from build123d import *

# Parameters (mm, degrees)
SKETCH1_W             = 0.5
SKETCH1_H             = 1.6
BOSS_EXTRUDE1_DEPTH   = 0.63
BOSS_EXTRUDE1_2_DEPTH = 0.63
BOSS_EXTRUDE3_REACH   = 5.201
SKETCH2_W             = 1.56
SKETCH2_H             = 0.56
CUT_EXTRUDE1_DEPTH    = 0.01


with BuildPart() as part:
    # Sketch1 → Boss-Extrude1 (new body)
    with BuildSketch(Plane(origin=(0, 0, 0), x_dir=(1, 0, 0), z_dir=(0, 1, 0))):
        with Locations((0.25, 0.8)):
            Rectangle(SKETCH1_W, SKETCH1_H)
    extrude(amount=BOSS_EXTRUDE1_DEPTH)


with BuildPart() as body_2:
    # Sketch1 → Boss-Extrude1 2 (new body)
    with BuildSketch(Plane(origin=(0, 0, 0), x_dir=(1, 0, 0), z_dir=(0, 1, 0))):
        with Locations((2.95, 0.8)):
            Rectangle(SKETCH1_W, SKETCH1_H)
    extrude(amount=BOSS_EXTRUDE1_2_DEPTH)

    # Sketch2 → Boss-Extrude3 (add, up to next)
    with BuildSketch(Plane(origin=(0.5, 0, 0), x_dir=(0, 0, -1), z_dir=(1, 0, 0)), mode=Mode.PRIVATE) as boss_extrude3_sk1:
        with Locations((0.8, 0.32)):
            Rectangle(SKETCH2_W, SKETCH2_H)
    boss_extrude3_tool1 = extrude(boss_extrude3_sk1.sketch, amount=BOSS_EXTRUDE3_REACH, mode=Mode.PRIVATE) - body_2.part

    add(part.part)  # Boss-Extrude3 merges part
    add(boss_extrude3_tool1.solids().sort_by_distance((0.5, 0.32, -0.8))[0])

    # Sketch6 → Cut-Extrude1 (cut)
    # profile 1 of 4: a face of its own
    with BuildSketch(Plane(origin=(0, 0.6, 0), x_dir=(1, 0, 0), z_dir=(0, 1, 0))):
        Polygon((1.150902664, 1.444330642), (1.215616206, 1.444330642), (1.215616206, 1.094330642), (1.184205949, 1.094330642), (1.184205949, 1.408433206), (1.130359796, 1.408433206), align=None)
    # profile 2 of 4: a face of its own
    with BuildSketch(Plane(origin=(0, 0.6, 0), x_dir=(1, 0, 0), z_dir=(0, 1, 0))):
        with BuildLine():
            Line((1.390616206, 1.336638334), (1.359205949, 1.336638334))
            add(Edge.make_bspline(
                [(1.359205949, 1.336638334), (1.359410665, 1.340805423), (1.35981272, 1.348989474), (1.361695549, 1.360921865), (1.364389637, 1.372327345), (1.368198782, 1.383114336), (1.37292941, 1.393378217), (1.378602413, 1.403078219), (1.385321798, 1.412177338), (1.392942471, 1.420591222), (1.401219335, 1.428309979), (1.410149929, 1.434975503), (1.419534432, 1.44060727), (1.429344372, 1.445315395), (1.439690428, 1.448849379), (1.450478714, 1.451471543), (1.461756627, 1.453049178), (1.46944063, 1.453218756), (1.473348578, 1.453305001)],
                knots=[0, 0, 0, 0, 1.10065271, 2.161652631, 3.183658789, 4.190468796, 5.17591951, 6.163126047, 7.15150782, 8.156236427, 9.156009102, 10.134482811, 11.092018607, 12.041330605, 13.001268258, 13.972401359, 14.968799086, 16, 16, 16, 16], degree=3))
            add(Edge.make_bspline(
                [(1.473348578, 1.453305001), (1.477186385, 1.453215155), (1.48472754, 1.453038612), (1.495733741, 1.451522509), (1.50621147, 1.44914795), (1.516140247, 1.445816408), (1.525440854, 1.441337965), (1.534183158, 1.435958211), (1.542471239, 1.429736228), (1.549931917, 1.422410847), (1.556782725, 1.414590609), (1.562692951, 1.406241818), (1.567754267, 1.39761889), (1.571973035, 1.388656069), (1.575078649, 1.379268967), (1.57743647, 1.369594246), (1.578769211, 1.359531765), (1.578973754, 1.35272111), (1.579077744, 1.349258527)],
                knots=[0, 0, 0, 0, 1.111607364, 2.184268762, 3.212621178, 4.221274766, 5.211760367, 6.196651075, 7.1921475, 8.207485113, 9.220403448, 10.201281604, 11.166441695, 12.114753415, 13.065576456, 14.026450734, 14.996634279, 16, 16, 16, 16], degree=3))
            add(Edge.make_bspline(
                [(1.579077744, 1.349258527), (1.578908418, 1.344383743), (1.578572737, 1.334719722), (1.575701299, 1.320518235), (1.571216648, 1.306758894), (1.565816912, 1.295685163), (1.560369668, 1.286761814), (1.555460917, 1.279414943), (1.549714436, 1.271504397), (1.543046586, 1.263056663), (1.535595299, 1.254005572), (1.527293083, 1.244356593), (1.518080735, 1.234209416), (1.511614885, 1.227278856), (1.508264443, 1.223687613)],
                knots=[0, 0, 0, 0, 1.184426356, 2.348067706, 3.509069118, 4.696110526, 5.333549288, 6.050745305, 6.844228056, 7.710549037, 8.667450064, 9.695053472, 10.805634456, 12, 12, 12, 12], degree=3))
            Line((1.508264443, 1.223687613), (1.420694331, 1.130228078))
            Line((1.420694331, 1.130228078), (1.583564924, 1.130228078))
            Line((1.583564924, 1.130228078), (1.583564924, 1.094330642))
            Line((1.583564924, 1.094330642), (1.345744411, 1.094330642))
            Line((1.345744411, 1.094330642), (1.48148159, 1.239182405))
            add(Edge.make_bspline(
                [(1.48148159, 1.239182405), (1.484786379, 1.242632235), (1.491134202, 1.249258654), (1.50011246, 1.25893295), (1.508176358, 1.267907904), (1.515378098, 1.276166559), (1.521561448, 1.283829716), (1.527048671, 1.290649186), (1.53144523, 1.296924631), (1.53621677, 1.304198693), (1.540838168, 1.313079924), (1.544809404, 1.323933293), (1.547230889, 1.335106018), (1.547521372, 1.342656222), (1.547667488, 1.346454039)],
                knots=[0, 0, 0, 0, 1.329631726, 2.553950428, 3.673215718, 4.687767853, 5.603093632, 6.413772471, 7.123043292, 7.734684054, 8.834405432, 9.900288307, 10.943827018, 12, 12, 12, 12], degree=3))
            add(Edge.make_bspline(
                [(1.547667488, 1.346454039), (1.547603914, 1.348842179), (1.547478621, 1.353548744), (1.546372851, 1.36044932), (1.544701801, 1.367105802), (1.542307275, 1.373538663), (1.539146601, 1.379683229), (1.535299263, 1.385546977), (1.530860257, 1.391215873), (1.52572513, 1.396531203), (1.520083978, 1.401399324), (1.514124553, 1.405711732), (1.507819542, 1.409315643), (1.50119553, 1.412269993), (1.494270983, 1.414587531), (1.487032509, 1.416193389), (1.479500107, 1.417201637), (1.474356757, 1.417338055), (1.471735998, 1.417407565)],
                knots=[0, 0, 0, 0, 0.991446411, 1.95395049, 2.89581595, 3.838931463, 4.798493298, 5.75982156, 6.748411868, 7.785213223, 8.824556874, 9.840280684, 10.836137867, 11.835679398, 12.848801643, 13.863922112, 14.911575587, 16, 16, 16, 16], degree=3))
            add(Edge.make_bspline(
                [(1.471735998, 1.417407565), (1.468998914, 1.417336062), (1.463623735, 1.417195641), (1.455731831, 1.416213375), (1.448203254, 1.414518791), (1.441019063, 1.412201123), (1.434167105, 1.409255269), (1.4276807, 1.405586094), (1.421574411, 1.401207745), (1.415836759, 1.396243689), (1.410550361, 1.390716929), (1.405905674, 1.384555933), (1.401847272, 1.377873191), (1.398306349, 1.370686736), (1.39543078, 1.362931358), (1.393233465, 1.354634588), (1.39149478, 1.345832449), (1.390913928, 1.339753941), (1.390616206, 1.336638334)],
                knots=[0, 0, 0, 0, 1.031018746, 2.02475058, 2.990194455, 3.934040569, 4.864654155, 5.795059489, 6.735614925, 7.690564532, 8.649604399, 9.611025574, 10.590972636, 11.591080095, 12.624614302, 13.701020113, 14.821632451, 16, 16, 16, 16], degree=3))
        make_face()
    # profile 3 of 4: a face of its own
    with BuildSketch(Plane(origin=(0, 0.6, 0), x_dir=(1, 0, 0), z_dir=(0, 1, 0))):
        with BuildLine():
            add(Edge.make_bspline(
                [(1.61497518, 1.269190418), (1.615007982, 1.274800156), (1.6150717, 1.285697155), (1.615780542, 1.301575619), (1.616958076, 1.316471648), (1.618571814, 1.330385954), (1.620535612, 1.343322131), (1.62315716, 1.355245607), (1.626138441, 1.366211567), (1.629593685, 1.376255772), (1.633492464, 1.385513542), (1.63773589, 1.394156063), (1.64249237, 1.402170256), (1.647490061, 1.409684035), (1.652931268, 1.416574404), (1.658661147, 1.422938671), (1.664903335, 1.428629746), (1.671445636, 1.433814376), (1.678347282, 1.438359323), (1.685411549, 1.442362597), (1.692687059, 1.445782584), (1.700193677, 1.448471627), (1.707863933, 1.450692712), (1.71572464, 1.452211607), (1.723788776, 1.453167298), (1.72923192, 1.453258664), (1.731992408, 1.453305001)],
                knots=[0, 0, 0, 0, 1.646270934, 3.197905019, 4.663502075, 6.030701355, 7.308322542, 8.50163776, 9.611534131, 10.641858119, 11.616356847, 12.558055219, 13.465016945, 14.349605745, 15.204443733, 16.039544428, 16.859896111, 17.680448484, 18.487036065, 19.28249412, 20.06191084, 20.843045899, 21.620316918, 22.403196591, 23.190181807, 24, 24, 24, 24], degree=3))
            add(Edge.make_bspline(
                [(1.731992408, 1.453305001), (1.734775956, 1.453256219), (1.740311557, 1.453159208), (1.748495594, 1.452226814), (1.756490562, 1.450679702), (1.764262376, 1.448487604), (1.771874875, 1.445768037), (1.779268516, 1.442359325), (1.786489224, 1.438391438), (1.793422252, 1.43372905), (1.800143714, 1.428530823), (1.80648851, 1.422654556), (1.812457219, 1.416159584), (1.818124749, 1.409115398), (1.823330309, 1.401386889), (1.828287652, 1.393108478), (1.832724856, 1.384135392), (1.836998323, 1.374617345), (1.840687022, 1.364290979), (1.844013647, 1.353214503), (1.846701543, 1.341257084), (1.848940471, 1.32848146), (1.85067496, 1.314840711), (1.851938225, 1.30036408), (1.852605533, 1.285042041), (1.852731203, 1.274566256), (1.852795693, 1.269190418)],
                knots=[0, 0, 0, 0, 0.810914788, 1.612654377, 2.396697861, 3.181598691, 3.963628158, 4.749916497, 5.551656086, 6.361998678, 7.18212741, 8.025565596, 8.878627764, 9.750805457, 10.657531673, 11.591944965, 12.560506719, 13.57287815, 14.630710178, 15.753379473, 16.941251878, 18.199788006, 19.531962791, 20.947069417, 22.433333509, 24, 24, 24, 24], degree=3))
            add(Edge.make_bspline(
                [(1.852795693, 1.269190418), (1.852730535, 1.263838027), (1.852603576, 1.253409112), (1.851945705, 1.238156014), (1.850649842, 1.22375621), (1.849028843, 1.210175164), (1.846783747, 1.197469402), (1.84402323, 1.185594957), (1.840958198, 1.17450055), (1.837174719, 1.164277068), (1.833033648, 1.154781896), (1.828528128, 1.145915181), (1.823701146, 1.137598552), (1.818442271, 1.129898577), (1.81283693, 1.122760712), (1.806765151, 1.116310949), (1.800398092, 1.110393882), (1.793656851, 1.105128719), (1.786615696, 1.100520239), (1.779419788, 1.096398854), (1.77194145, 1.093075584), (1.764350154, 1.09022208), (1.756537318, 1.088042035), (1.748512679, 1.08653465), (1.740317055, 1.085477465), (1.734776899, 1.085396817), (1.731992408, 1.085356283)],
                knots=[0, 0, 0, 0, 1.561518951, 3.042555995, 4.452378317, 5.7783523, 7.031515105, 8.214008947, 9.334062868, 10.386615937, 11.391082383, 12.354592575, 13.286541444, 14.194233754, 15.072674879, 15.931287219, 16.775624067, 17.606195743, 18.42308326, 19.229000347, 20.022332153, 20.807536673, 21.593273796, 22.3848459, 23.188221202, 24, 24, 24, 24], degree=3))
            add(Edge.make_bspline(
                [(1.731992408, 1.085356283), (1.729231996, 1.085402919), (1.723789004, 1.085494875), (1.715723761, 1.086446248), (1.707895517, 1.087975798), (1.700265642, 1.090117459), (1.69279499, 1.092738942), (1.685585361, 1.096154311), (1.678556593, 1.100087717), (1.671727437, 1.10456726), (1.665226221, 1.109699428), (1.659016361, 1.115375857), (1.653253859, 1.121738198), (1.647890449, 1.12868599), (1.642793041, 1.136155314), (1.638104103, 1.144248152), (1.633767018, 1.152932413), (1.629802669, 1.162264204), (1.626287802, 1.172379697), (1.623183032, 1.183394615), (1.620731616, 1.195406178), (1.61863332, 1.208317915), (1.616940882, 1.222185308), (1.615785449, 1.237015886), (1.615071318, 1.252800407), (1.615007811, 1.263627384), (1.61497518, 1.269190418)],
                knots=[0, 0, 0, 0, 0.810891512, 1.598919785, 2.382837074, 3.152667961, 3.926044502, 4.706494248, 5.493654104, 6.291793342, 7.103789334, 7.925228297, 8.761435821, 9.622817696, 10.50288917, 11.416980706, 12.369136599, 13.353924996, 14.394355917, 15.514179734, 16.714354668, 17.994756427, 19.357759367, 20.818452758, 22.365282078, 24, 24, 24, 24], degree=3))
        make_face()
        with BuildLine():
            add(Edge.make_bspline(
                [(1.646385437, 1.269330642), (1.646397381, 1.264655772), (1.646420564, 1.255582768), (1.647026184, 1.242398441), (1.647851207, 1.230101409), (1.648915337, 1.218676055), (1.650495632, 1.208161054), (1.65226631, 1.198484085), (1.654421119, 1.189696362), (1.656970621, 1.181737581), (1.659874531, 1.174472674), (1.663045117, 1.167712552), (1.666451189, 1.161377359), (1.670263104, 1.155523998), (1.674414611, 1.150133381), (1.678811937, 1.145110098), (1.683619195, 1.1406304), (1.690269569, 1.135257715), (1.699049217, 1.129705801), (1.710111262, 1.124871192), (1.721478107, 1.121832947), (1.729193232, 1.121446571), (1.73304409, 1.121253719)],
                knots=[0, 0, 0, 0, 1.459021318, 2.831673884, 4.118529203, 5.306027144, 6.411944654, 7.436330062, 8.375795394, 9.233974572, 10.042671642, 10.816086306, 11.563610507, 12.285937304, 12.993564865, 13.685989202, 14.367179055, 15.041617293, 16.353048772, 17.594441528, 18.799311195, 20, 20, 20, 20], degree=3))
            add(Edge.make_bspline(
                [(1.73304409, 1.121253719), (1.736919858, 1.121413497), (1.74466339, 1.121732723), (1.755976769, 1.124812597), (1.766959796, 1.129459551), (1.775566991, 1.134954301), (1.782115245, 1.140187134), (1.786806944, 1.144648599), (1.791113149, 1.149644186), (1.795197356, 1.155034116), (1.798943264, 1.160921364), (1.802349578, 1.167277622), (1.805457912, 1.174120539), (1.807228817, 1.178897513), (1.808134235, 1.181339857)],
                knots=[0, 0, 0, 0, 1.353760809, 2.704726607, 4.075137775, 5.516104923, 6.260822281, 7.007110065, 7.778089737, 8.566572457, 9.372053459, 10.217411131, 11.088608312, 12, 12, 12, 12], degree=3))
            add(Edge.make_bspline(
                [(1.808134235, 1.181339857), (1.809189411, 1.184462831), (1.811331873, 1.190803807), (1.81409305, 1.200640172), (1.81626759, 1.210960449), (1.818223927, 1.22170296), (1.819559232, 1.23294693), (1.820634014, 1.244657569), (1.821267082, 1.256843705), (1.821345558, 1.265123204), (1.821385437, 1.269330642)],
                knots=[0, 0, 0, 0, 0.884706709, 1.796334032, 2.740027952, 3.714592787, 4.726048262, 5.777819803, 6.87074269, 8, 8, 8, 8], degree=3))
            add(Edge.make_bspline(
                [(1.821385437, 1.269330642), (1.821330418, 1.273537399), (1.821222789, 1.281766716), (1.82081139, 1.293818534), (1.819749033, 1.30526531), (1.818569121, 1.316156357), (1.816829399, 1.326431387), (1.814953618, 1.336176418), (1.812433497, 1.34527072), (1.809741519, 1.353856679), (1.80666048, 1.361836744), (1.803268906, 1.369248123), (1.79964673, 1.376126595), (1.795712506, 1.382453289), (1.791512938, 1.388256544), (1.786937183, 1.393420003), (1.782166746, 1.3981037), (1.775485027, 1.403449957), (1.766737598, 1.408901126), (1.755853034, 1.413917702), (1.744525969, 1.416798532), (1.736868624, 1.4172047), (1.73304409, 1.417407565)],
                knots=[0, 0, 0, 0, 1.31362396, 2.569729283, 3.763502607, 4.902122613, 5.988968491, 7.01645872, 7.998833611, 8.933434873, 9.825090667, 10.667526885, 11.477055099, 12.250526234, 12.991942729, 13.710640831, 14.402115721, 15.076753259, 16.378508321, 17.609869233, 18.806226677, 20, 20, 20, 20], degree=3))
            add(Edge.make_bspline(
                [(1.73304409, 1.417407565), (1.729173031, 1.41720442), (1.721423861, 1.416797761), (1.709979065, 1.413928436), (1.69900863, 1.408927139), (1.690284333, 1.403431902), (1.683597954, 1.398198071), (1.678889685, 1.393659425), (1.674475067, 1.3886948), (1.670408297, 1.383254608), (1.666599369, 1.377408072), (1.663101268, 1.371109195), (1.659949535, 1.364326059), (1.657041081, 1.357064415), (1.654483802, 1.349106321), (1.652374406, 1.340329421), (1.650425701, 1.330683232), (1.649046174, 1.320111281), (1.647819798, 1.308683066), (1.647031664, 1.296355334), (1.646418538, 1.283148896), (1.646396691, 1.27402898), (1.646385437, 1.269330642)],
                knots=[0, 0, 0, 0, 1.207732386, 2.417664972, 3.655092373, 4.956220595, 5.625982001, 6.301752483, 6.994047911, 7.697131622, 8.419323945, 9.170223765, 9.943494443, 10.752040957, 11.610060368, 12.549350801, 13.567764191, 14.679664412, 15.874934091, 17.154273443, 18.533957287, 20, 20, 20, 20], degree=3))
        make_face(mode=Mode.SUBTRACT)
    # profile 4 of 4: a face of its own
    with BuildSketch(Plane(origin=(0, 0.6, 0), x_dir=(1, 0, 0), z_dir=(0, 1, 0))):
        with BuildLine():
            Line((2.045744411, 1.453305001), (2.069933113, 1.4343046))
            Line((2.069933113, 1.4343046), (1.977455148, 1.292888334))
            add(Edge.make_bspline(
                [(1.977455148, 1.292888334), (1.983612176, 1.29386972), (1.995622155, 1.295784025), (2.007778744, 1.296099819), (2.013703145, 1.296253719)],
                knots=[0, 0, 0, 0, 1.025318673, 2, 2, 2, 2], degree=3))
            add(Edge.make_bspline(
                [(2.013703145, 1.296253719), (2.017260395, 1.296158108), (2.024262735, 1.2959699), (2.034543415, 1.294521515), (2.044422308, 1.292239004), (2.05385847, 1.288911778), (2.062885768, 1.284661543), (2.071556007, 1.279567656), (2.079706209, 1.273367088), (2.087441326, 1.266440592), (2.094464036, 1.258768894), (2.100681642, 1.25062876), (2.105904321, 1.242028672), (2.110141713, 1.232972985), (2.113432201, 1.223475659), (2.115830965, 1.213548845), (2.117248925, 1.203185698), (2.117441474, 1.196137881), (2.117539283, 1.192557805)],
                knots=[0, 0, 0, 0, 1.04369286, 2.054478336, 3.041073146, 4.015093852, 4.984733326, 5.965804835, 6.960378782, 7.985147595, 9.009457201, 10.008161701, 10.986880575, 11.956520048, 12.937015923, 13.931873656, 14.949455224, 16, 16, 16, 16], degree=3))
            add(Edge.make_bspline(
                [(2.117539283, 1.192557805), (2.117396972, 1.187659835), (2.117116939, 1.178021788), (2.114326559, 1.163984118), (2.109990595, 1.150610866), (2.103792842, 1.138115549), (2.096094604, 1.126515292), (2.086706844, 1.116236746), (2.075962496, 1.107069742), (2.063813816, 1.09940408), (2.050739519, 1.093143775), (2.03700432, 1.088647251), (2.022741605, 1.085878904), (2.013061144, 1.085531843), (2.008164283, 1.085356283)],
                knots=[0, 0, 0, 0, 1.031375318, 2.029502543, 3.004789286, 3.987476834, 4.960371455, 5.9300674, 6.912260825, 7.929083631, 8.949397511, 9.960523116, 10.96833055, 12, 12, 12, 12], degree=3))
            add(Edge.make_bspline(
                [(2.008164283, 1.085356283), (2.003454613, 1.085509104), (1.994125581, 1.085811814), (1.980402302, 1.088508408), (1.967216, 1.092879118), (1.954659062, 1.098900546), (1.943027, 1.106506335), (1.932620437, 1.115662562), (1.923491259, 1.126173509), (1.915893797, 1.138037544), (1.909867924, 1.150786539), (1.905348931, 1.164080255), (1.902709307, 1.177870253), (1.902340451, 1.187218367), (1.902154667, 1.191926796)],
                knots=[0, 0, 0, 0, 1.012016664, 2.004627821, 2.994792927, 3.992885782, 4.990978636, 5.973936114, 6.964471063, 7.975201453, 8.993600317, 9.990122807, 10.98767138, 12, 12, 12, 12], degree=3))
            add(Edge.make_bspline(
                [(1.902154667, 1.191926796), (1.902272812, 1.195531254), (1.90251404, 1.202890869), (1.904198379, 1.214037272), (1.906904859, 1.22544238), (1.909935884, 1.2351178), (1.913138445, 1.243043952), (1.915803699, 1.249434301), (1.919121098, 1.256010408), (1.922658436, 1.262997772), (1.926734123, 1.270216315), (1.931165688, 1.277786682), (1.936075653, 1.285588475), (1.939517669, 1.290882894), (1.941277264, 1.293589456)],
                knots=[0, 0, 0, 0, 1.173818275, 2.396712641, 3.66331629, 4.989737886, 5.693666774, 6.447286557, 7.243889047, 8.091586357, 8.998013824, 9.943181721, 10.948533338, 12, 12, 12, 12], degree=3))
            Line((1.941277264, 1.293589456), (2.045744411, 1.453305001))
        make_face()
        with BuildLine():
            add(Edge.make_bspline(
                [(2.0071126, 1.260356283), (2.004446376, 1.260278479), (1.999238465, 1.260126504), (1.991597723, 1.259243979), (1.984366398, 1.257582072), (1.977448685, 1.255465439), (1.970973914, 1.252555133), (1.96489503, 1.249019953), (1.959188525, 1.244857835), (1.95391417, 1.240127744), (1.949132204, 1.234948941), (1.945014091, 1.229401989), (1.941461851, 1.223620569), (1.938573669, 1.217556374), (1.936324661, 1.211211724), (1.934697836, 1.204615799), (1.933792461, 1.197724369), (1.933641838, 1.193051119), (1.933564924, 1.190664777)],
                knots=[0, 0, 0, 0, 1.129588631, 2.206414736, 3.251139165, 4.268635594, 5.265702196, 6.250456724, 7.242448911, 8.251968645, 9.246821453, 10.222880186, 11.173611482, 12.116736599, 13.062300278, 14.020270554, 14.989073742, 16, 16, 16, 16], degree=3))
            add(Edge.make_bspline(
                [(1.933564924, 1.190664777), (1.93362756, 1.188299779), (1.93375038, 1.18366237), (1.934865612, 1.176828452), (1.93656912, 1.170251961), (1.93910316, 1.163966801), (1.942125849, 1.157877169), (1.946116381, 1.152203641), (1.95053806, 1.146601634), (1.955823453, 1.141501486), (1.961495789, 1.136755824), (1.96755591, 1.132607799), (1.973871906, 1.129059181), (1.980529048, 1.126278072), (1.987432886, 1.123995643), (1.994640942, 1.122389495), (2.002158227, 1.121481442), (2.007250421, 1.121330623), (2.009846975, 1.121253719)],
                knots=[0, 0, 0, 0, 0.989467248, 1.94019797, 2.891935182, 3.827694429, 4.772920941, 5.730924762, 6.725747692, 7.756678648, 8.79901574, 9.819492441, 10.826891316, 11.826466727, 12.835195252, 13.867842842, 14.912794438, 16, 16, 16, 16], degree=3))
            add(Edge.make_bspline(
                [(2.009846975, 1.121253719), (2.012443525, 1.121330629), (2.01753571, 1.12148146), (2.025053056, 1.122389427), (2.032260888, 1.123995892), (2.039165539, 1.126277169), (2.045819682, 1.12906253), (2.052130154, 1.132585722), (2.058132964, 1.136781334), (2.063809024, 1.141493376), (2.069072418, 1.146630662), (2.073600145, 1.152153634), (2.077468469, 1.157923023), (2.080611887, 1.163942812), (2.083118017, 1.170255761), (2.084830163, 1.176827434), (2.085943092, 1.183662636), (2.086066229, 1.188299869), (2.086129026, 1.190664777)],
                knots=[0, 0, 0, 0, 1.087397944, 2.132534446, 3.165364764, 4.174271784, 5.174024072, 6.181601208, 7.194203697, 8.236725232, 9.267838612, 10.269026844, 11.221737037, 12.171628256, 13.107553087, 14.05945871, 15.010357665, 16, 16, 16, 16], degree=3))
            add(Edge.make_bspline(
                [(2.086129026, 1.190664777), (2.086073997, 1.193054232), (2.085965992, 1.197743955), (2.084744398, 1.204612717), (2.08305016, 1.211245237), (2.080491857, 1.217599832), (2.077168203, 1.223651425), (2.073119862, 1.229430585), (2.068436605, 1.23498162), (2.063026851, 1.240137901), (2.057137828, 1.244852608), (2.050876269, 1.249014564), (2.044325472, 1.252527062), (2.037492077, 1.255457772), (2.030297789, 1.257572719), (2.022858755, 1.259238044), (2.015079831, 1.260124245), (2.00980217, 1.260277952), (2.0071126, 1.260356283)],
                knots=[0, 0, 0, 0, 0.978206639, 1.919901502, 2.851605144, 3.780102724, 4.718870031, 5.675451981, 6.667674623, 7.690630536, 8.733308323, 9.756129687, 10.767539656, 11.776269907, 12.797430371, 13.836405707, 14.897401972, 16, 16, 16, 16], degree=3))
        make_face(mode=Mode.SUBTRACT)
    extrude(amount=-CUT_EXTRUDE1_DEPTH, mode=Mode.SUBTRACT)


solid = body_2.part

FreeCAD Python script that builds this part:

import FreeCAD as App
import Part
import Sketcher
from FreeCAD import Vector
Q = App.Units.Quantity

doc = App.newDocument("Part")
params = doc.addObject("Spreadsheet::Sheet", "Params")
for row, (alias, value) in enumerate([
    ("sketch1_width", "0.5 mm"),
    ("sketch1_height", "1.6 mm"),
    ("pad1_length", "0.63 mm"),
    ("sketch2_width", "0.5 mm"),
    ("sketch2_height", "1.6 mm"),
    ("pad2_length", "0.63 mm"),
    ("sketch3_width", "0.56 mm"),
    ("sketch3_height", "1.56 mm"),
    ("sketch4_height", "0.35 mm"),
    ("pocket1_length", "0.01 mm"),
], start=1):
    params.set(f"A{row}", alias)
    params.set(f"B{row}", "=" + value)
    params.setAlias(f"B{row}", alias)

body = doc.addObject("PartDesign::Body", "Body")

# Sketch on XZ plane
sketch1 = doc.addObject("Sketcher::SketchObject", "Sketch")
body.addObject(sketch1)
sketch1.AttachmentSupport = (doc.XZ_Plane, [""])
sketch1.MapMode = "FlatFace"
sketch1.addGeometry([
    Part.LineSegment(Vector(0, -1.6, 0), Vector(0, 0, 0)),
    Part.LineSegment(Vector(0, 0, 0), Vector(0.5, 0, 0)),
    Part.LineSegment(Vector(0.5, 0, 0), Vector(0.5, -1.6, 0)),
    Part.LineSegment(Vector(0.5, -1.6, 0), Vector(0, -1.6, 0)),
], False)
sketch1.addConstraint([
    Sketcher.Constraint("Coincident", 0, 2, 1, 1),
    Sketcher.Constraint("Coincident", 1, 2, 2, 1),
    Sketcher.Constraint("Coincident", 2, 2, 3, 1),
    Sketcher.Constraint("Coincident", 3, 2, 0, 1),
    Sketcher.Constraint("Vertical", 0),
    Sketcher.Constraint("Horizontal", 1),
    Sketcher.Constraint("Vertical", 2),
    Sketcher.Constraint("Horizontal", 3),
    Sketcher.Constraint("Coincident", 0, 2, -1, 1),
    Sketcher.Constraint("DistanceX", 1, 1, 1, 2, Q("0.5 mm")),
    Sketcher.Constraint("DistanceY", 0, 1, 0, 2, Q("1.6 mm")),
])
sketch1.setExpression("Constraints[9]", "Params.sketch1_width")
sketch1.setExpression("Constraints[10]", "Params.sketch1_height")
pad1 = doc.addObject("PartDesign::Pad", "Pad")
body.addObject(pad1)
pad1.Profile = sketch1
pad1.setExpression("Length", "Params.pad1_length")
pad1.Reversed = True
body2 = doc.addObject("PartDesign::Body", "Body001")
body2.AllowCompound = True

# Sketch on XZ plane
sketch2 = doc.addObject("Sketcher::SketchObject", "Sketch001")
body2.addObject(sketch2)
sketch2.AttachmentSupport = (doc.getObject("XZ_Plane001"), [""])
sketch2.MapMode = "FlatFace"
sketch2.addGeometry([
    Part.LineSegment(Vector(2.7, -1.6, 0), Vector(2.7, 0, 0)),
    Part.LineSegment(Vector(2.7, 0, 0), Vector(3.2, 0, 0)),
    Part.LineSegment(Vector(3.2, 0, 0), Vector(3.2, -1.6, 0)),
    Part.LineSegment(Vector(3.2, -1.6, 0), Vector(2.7, -1.6, 0)),
], False)
sketch2.addConstraint([
    Sketcher.Constraint("Coincident", 0, 2, 1, 1),
    Sketcher.Constraint("Coincident", 1, 2, 2, 1),
    Sketcher.Constraint("Coincident", 2, 2, 3, 1),
    Sketcher.Constraint("Coincident", 3, 2, 0, 1),
    Sketcher.Constraint("Vertical", 0),
    Sketcher.Constraint("Horizontal", 1),
    Sketcher.Constraint("Vertical", 2),
    Sketcher.Constraint("Horizontal", 3),
    Sketcher.Constraint("PointOnObject", 0, 2, -1),
    Sketcher.Constraint("DistanceX", 1, 1, 1, 2, Q("0.5 mm")),
    Sketcher.Constraint("DistanceY", 0, 1, 0, 2, Q("1.6 mm")),
    Sketcher.Constraint("DistanceX", -1, 1, 0, 2, Q("2.7 mm")),
])
sketch2.setExpression("Constraints[9]", "Params.sketch2_width")
sketch2.setExpression("Constraints[10]", "Params.sketch2_height")
pad2 = doc.addObject("PartDesign::Pad", "Pad001")
body2.addObject(pad2)
pad2.Profile = sketch2
pad2.setExpression("Length", "Params.pad2_length")
pad2.Reversed = True
doc.recompute()

boolean = doc.addObject("PartDesign::Boolean", "Boolean")
body2.addObject(boolean)
boolean.Type = "Fuse"
boolean.addObjects([body])

# Sketch on YZ plane
sketch3 = doc.addObject("Sketcher::SketchObject", "Sketch002")
body2.addObject(sketch3)
sketch3.AttachmentSupport = (doc.getObject("YZ_Plane001"), [""])
sketch3.MapMode = "FlatFace"
sketch3.AttachmentOffset = App.Placement(Vector(0, 0, 0.5), App.Rotation())
sketch3.addGeometry([
    Part.LineSegment(Vector(0.6, 0, 0), Vector(0, 0, 0)),
    Part.LineSegment(Vector(0, 0, 0), Vector(0, -1.6, 0)),
    Part.LineSegment(Vector(0, -1.6, 0), Vector(0.6, -1.6, 0)),
    Part.LineSegment(Vector(0.6, -1.6, 0), Vector(0.6, 0, 0)),
], False)
sketch3.addConstraint([
    Sketcher.Constraint("Coincident", 0, 2, 1, 1),
    Sketcher.Constraint("Coincident", 1, 2, 2, 1),
    Sketcher.Constraint("Coincident", 2, 2, 3, 1),
    Sketcher.Constraint("Coincident", 3, 2, 0, 1),
    Sketcher.Constraint("Horizontal", 0),
    Sketcher.Constraint("Vertical", 1),
    Sketcher.Constraint("Horizontal", 2),
    Sketcher.Constraint("Vertical", 3),
    Sketcher.Constraint("DistanceX", 0, 2, 0, 1, Q("0.56 mm")),
    Sketcher.Constraint("DistanceY", 1, 2, 1, 1, Q("1.56 mm")),
    Sketcher.Constraint("DistanceX", -1, 1, 2, 2, Q("0.6 mm")),
    Sketcher.Constraint("DistanceY", 0, 2, -1, 1, Q("0.02 mm")),
])
sketch3.setExpression("Constraints[8]", "Params.sketch3_width")
sketch3.setExpression("Constraints[9]", "Params.sketch3_height")
pad3 = doc.addObject("PartDesign::Pad", "Pad002")
body2.addObject(pad3)
pad3.Profile = sketch3
pad3.Type = "UpToFirst"

# Sketch on XZ plane
sketch4 = doc.addObject("Sketcher::SketchObject", "Sketch003")
body2.addObject(sketch4)
sketch4.AttachmentSupport = (doc.getObject("XZ_Plane001"), [""])
sketch4.MapMode = "FlatFace"
sketch4.AttachmentOffset = App.Placement(Vector(0, 0, -0.6), App.Rotation())
sketch4.addGeometry([
    Part.LineSegment(Vector(1.215616, -1.444331, 0), Vector(1.150903, -1.444331, 0)),  # 0
    Part.LineSegment(Vector(1.150903, -1.444331, 0), Vector(1.13036, -1.408433, 0)),  # 1
    Part.LineSegment(Vector(1.13036, -1.408433, 0), Vector(1.184206, -1.408433, 0)),  # 2
    Part.LineSegment(Vector(1.184206, -1.408433, 0), Vector(1.184206, -1.094331, 0)),  # 3
    Part.LineSegment(Vector(1.184206, -1.094331, 0), Vector(1.215616, -1.094331, 0)),  # 4
    Part.LineSegment(Vector(1.215616, -1.094331, 0), Vector(1.215616, -1.444331, 0)),  # 5
    Part.LineSegment(Vector(1.359206, -1.336638, 0), Vector(1.390616, -1.336638, 0)),  # 6
    Part.BSplineCurve([Vector(1.471736, -1.417408, 0), Vector(1.468999, -1.417336, 0), Vector(1.463624, -1.417196, 0), Vector(1.455732, -1.416213, 0), Vector(1.448203, -1.414519, 0), Vector(1.441019, -1.412201, 0), Vector(1.434167, -1.409255, 0), Vector(1.427681, -1.405586, 0), Vector(1.421574, -1.401208, 0), Vector(1.415837, -1.396244, 0), Vector(1.41055, -1.390717, 0), Vector(1.405906, -1.384556, 0), Vector(1.401847, -1.377873, 0), Vector(1.398306, -1.370687, 0), Vector(1.395431, -1.362931, 0), Vector(1.393233, -1.354635, 0), Vector(1.391495, -1.345832, 0), Vector(1.390914, -1.339754, 0), Vector(1.390616, -1.336638, 0)], [4, 1, 1, 1, 1, 1, 1, 1, 1, 1, 1, 1, 1, 1, 1, 1, 4], [0, 1.031018746, 2.02475058, 2.990194455, 3.934040569, 4.864654155, 5.795059489, 6.735614925, 7.690564532, 8.649604399, 9.611025574, 10.590972636, 11.591080095, 12.624614302, 13.701020113, 14.821632451, 16], False, 3, [1, 1, 1, 1, 1, 1, 1, 1, 1, 1, 1, 1, 1, 1, 1, 1, 1, 1, 1], False),  # 7
    Part.BSplineCurve([Vector(1.547667, -1.346454, 0), Vector(1.547604, -1.348842, 0), Vector(1.547479, -1.353549, 0), Vector(1.546373, -1.360449, 0), Vector(1.544702, -1.367106, 0), Vector(1.542307, -1.373539, 0), Vector(1.539147, -1.379683, 0), Vector(1.535299, -1.385547, 0), Vector(1.53086, -1.391216, 0), Vector(1.525725, -1.396531, 0), Vector(1.520084, -1.401399, 0), Vector(1.514125, -1.405712, 0), Vector(1.50782, -1.409316, 0), Vector(1.501196, -1.41227, 0), Vector(1.494271, -1.414588, 0), Vector(1.487033, -1.416193, 0), Vector(1.4795, -1.417202, 0), Vector(1.474357, -1.417338, 0), Vector(1.471736, -1.417408, 0)], [4, 1, 1, 1, 1, 1, 1, 1, 1, 1, 1, 1, 1, 1, 1, 1, 4], [0, 0.991446411, 1.95395049, 2.89581595, 3.838931463, 4.798493298, 5.75982156, 6.748411868, 7.785213223, 8.824556874, 9.840280684, 10.836137867, 11.835679398, 12.848801643, 13.863922112, 14.911575587, 16], False, 3, [1, 1, 1, 1, 1, 1, 1, 1, 1, 1, 1, 1, 1, 1, 1, 1, 1, 1, 1], False),  # 8
    Part.BSplineCurve([Vector(1.481482, -1.239182, 0), Vector(1.484786, -1.242632, 0), Vector(1.491134, -1.249259, 0), Vector(1.500112, -1.258933, 0), Vector(1.508176, -1.267908, 0), Vector(1.515378, -1.276167, 0), Vector(1.521561, -1.28383, 0), Vector(1.527049, -1.290649, 0), Vector(1.531445, -1.296925, 0), Vector(1.536217, -1.304199, 0), Vector(1.540838, -1.31308, 0), Vector(1.544809, -1.323933, 0), Vector(1.547231, -1.335106, 0), Vector(1.547521, -1.342656, 0), Vector(1.547667, -1.346454, 0)], [4, 1, 1, 1, 1, 1, 1, 1, 1, 1, 1, 1, 4], [0, 1.329631726, 2.553950428, 3.673215718, 4.687767853, 5.603093632, 6.413772471, 7.123043292, 7.734684054, 8.834405432, 9.900288307, 10.943827018, 12], False, 3, [1, 1, 1, 1, 1, 1, 1, 1, 1, 1, 1, 1, 1, 1, 1], False),  # 9
    Part.LineSegment(Vector(1.481482, -1.239182, 0), Vector(1.345744, -1.094331, 0)),  # 10
    Part.LineSegment(Vector(1.345744, -1.094331, 0), Vector(1.583565, -1.094331, 0)),  # 11
    Part.LineSegment(Vector(1.583565, -1.094331, 0), Vector(1.583565, -1.130228, 0)),  # 12
    Part.LineSegment(Vector(1.583565, -1.130228, 0), Vector(1.420694, -1.130228, 0)),  # 13
    Part.LineSegment(Vector(1.420694, -1.130228, 0), Vector(1.508264, -1.223688, 0)),  # 14
    Part.BSplineCurve([Vector(1.579078, -1.349259, 0), Vector(1.578908, -1.344384, 0), Vector(1.578573, -1.33472, 0), Vector(1.575701, -1.320518, 0), Vector(1.571217, -1.306759, 0), Vector(1.565817, -1.295685, 0), Vector(1.56037, -1.286762, 0), Vector(1.555461, -1.279415, 0), Vector(1.549714, -1.271504, 0), Vector(1.543047, -1.263057, 0), Vector(1.535595, -1.254006, 0), Vector(1.527293, -1.244357, 0), Vector(1.518081, -1.234209, 0), Vector(1.511615, -1.227279, 0), Vector(1.508264, -1.223688, 0)], [4, 1, 1, 1, 1, 1, 1, 1, 1, 1, 1, 1, 4], [0, 1.184426356, 2.348067706, 3.509069118, 4.696110526, 5.333549288, 6.050745305, 6.844228056, 7.710549037, 8.667450064, 9.695053472, 10.805634456, 12], False, 3, [1, 1, 1, 1, 1, 1, 1, 1, 1, 1, 1, 1, 1, 1, 1], False),  # 15
    Part.BSplineCurve([Vector(1.473349, -1.453305, 0), Vector(1.477186, -1.453215, 0), Vector(1.484728, -1.453039, 0), Vector(1.495734, -1.451523, 0), Vector(1.506211, -1.449148, 0), Vector(1.51614, -1.445816, 0), Vector(1.525441, -1.441338, 0), Vector(1.534183, -1.435958, 0), Vector(1.542471, -1.429736, 0), Vector(1.549932, -1.422411, 0), Vector(1.556783, -1.414591, 0), Vector(1.562693, -1.406242, 0), Vector(1.567754, -1.397619, 0), Vector(1.571973, -1.388656, 0), Vector(1.575079, -1.379269, 0), Vector(1.577436, -1.369594, 0), Vector(1.578769, -1.359532, 0), Vector(1.578974, -1.352721, 0), Vector(1.579078, -1.349259, 0)], [4, 1, 1, 1, 1, 1, 1, 1, 1, 1, 1, 1, 1, 1, 1, 1, 4], [0, 1.111607364, 2.184268762, 3.212621178, 4.221274766, 5.211760367, 6.196651075, 7.1921475, 8.207485113, 9.220403448, 10.201281604, 11.166441695, 12.114753415, 13.065576456, 14.026450734, 14.996634279, 16], False, 3, [1, 1, 1, 1, 1, 1, 1, 1, 1, 1, 1, 1, 1, 1, 1, 1, 1, 1, 1], False),  # 16
    Part.BSplineCurve([Vector(1.359206, -1.336638, 0), Vector(1.359411, -1.340805, 0), Vector(1.359813, -1.348989, 0), Vector(1.361696, -1.360922, 0), Vector(1.36439, -1.372327, 0), Vector(1.368199, -1.383114, 0), Vector(1.372929, -1.393378, 0), Vector(1.378602, -1.403078, 0), Vector(1.385322, -1.412177, 0), Vector(1.392942, -1.420591, 0), Vector(1.401219, -1.42831, 0), Vector(1.41015, -1.434976, 0), Vector(1.419534, -1.440607, 0), Vector(1.429344, -1.445315, 0), Vector(1.43969, -1.448849, 0), Vector(1.450479, -1.451472, 0), Vector(1.461757, -1.453049, 0), Vector(1.469441, -1.453219, 0), Vector(1.473349, -1.453305, 0)], [4, 1, 1, 1, 1, 1, 1, 1, 1, 1, 1, 1, 1, 1, 1, 1, 4], [0, 1.10065271, 2.161652631, 3.183658789, 4.190468796, 5.17591951, 6.163126047, 7.15150782, 8.156236427, 9.156009102, 10.134482811, 11.092018607, 12.041330605, 13.001268258, 13.972401359, 14.968799086, 16], False, 3, [1, 1, 1, 1, 1, 1, 1, 1, 1, 1, 1, 1, 1, 1, 1, 1, 1, 1, 1], False),  # 17
    Part.BSplineCurve([Vector(1.614975, -1.26919, 0), Vector(1.615008, -1.2748, 0), Vector(1.615072, -1.285697, 0), Vector(1.615781, -1.301576, 0), Vector(1.616958, -1.316472, 0), Vector(1.618572, -1.330386, 0), Vector(1.620536, -1.343322, 0), Vector(1.623157, -1.355246, 0), Vector(1.626138, -1.366212, 0), Vector(1.629594, -1.376256, 0), Vector(1.633492, -1.385514, 0), Vector(1.637736, -1.394156, 0), Vector(1.642492, -1.40217, 0), Vector(1.64749, -1.409684, 0), Vector(1.652931, -1.416574, 0), Vector(1.658661, -1.422939, 0), Vector(1.664903, -1.42863, 0), Vector(1.671446, -1.433814, 0), Vector(1.678347, -1.438359, 0), Vector(1.685412, -1.442363, 0), Vector(1.692687, -1.445783, 0), Vector(1.700194, -1.448472, 0), Vector(1.707864, -1.450693, 0), Vector(1.715725, -1.452212, 0), Vector(1.723789, -1.453167, 0), Vector(1.729232, -1.453259, 0), Vector(1.731992, -1.453305, 0)], [4, 1, 1, 1, 1, 1, 1, 1, 1, 1, 1, 1, 1, 1, 1, 1, 1, 1, 1, 1, 1, 1, 1, 1, 4], [0, 1.646270934, 3.197905019, 4.663502075, 6.030701355, 7.308322542, 8.50163776, 9.611534131, 10.641858119, 11.616356847, 12.558055219, 13.465016945, 14.349605745, 15.204443733, 16.039544428, 16.859896111, 17.680448484, 18.487036065, 19.28249412, 20.06191084, 20.843045899, 21.620316918, 22.403196591, 23.190181807, 24], False, 3, [1, 1, 1, 1, 1, 1, 1, 1, 1, 1, 1, 1, 1, 1, 1, 1, 1, 1, 1, 1, 1, 1, 1, 1, 1, 1, 1], False),  # 18
    Part.BSplineCurve([Vector(1.731992, -1.085356, 0), Vector(1.729232, -1.085403, 0), Vector(1.723789, -1.085495, 0), Vector(1.715724, -1.086446, 0), Vector(1.707896, -1.087976, 0), Vector(1.700266, -1.090117, 0), Vector(1.692795, -1.092739, 0), Vector(1.685585, -1.096154, 0), Vector(1.678557, -1.100088, 0), Vector(1.671727, -1.104567, 0), Vector(1.665226, -1.109699, 0), Vector(1.659016, -1.115376, 0), Vector(1.653254, -1.121738, 0), Vector(1.64789, -1.128686, 0), Vector(1.642793, -1.136155, 0), Vector(1.638104, -1.144248, 0), Vector(1.633767, -1.152932, 0), Vector(1.629803, -1.162264, 0), Vector(1.626288, -1.17238, 0), Vector(1.623183, -1.183395, 0), Vector(1.620732, -1.195406, 0), Vector(1.618633, -1.208318, 0), Vector(1.616941, -1.222185, 0), Vector(1.615785, -1.237016, 0), Vector(1.615071, -1.2528, 0), Vector(1.615008, -1.263627, 0), Vector(1.614975, -1.26919, 0)], [4, 1, 1, 1, 1, 1, 1, 1, 1, 1, 1, 1, 1, 1, 1, 1, 1, 1, 1, 1, 1, 1, 1, 1, 4], [0, 0.810891512, 1.598919785, 2.382837074, 3.152667961, 3.926044502, 4.706494248, 5.493654104, 6.291793342, 7.103789334, 7.925228297, 8.761435821, 9.622817696, 10.50288917, 11.416980706, 12.369136599, 13.353924996, 14.394355917, 15.514179734, 16.714354668, 17.994756427, 19.357759367, 20.818452758, 22.365282078, 24], False, 3, [1, 1, 1, 1, 1, 1, 1, 1, 1, 1, 1, 1, 1, 1, 1, 1, 1, 1, 1, 1, 1, 1, 1, 1, 1, 1, 1], False),  # 19
    Part.BSplineCurve([Vector(1.852796, -1.26919, 0), Vector(1.852731, -1.263838, 0), Vector(1.852604, -1.253409, 0), Vector(1.851946, -1.238156, 0), Vector(1.85065, -1.223756, 0), Vector(1.849029, -1.210175, 0), Vector(1.846784, -1.197469, 0), Vector(1.844023, -1.185595, 0), Vector(1.840958, -1.174501, 0), Vector(1.837175, -1.164277, 0), Vector(1.833034, -1.154782, 0), Vector(1.828528, -1.145915, 0), Vector(1.823701, -1.137599, 0), Vector(1.818442, -1.129899, 0), Vector(1.812837, -1.122761, 0), Vector(1.806765, -1.116311, 0), Vector(1.800398, -1.110394, 0), Vector(1.793657, -1.105129, 0), Vector(1.786616, -1.10052, 0), Vector(1.77942, -1.096399, 0), Vector(1.771941, -1.093076, 0), Vector(1.76435, -1.090222, 0), Vector(1.756537, -1.088042, 0), Vector(1.748513, -1.086535, 0), Vector(1.740317, -1.085477, 0), Vector(1.734777, -1.085397, 0), Vector(1.731992, -1.085356, 0)], [4, 1, 1, 1, 1, 1, 1, 1, 1, 1, 1, 1, 1, 1, 1, 1, 1, 1, 1, 1, 1, 1, 1, 1, 4], [0, 1.561518951, 3.042555995, 4.452378317, 5.7783523, 7.031515105, 8.214008947, 9.334062868, 10.386615937, 11.391082383, 12.354592575, 13.286541444, 14.194233754, 15.072674879, 15.931287219, 16.775624067, 17.606195743, 18.42308326, 19.229000347, 20.022332153, 20.807536673, 21.593273796, 22.3848459, 23.188221202, 24], False, 3, [1, 1, 1, 1, 1, 1, 1, 1, 1, 1, 1, 1, 1, 1, 1, 1, 1, 1, 1, 1, 1, 1, 1, 1, 1, 1, 1], False),  # 20
    Part.BSplineCurve([Vector(1.731992, -1.453305, 0), Vector(1.734776, -1.453256, 0), Vector(1.740312, -1.453159, 0), Vector(1.748496, -1.452227, 0), Vector(1.756491, -1.45068, 0), Vector(1.764262, -1.448488, 0), Vector(1.771875, -1.445768, 0), Vector(1.779269, -1.442359, 0), Vector(1.786489, -1.438391, 0), Vector(1.793422, -1.433729, 0), Vector(1.800144, -1.428531, 0), Vector(1.806489, -1.422655, 0), Vector(1.812457, -1.41616, 0), Vector(1.818125, -1.409115, 0), Vector(1.82333, -1.401387, 0), Vector(1.828288, -1.393108, 0), Vector(1.832725, -1.384135, 0), Vector(1.836998, -1.374617, 0), Vector(1.840687, -1.364291, 0), Vector(1.844014, -1.353215, 0), Vector(1.846702, -1.341257, 0), Vector(1.84894, -1.328481, 0), Vector(1.850675, -1.314841, 0), Vector(1.851938, -1.300364, 0), Vector(1.852606, -1.285042, 0), Vector(1.852731, -1.274566, 0), Vector(1.852796, -1.26919, 0)], [4, 1, 1, 1, 1, 1, 1, 1, 1, 1, 1, 1, 1, 1, 1, 1, 1, 1, 1, 1, 1, 1, 1, 1, 4], [0, 0.810914788, 1.612654377, 2.396697861, 3.181598691, 3.963628158, 4.749916497, 5.551656086, 6.361998678, 7.18212741, 8.025565596, 8.878627764, 9.750805457, 10.657531673, 11.591944965, 12.560506719, 13.57287815, 14.630710178, 15.753379473, 16.941251878, 18.199788006, 19.531962791, 20.947069417, 22.433333509, 24], False, 3, [1, 1, 1, 1, 1, 1, 1, 1, 1, 1, 1, 1, 1, 1, 1, 1, 1, 1, 1, 1, 1, 1, 1, 1, 1, 1, 1], False),  # 21
    Part.BSplineCurve([Vector(1.733044, -1.417408, 0), Vector(1.729173, -1.417204, 0), Vector(1.721424, -1.416798, 0), Vector(1.709979, -1.413928, 0), Vector(1.699009, -1.408927, 0), Vector(1.690284, -1.403432, 0), Vector(1.683598, -1.398198, 0), Vector(1.67889, -1.393659, 0), Vector(1.674475, -1.388695, 0), Vector(1.670408, -1.383255, 0), Vector(1.666599, -1.377408, 0), Vector(1.663101, -1.371109, 0), Vector(1.65995, -1.364326, 0), Vector(1.657041, -1.357064, 0), Vector(1.654484, -1.349106, 0), Vector(1.652374, -1.340329, 0), Vector(1.650426, -1.330683, 0), Vector(1.649046, -1.320111, 0), Vector(1.64782, -1.308683, 0), Vector(1.647032, -1.296355, 0), Vector(1.646419, -1.283149, 0), Vector(1.646397, -1.274029, 0), Vector(1.646385, -1.269331, 0)], [4, 1, 1, 1, 1, 1, 1, 1, 1, 1, 1, 1, 1, 1, 1, 1, 1, 1, 1, 1, 4], [0, 1.207732386, 2.417664972, 3.655092373, 4.956220595, 5.625982001, 6.301752483, 6.994047911, 7.697131622, 8.419323945, 9.170223765, 9.943494443, 10.752040957, 11.610060368, 12.549350801, 13.567764191, 14.679664412, 15.874934091, 17.154273443, 18.533957287, 20], False, 3, [1, 1, 1, 1, 1, 1, 1, 1, 1, 1, 1, 1, 1, 1, 1, 1, 1, 1, 1, 1, 1, 1, 1], False),  # 22
    Part.BSplineCurve([Vector(1.821385, -1.269331, 0), Vector(1.82133, -1.273537, 0), Vector(1.821223, -1.281767, 0), Vector(1.820811, -1.293819, 0), Vector(1.819749, -1.305265, 0), Vector(1.818569, -1.316156, 0), Vector(1.816829, -1.326431, 0), Vector(1.814954, -1.336176, 0), Vector(1.812433, -1.345271, 0), Vector(1.809742, -1.353857, 0), Vector(1.80666, -1.361837, 0), Vector(1.803269, -1.369248, 0), Vector(1.799647, -1.376127, 0), Vector(1.795713, -1.382453, 0), Vector(1.791513, -1.388257, 0), Vector(1.786937, -1.39342, 0), Vector(1.782167, -1.398104, 0), Vector(1.775485, -1.40345, 0), Vector(1.766738, -1.408901, 0), Vector(1.755853, -1.413918, 0), Vector(1.744526, -1.416799, 0), Vector(1.736869, -1.417205, 0), Vector(1.733044, -1.417408, 0)], [4, 1, 1, 1, 1, 1, 1, 1, 1, 1, 1, 1, 1, 1, 1, 1, 1, 1, 1, 1, 4], [0, 1.31362396, 2.569729283, 3.763502607, 4.902122613, 5.988968491, 7.01645872, 7.998833611, 8.933434873, 9.825090667, 10.667526885, 11.477055099, 12.250526234, 12.991942729, 13.710640831, 14.402115721, 15.076753259, 16.378508321, 17.609869233, 18.806226677, 20], False, 3, [1, 1, 1, 1, 1, 1, 1, 1, 1, 1, 1, 1, 1, 1, 1, 1, 1, 1, 1, 1, 1, 1, 1], False),  # 23
    Part.BSplineCurve([Vector(1.808134, -1.18134, 0), Vector(1.809189, -1.184463, 0), Vector(1.811332, -1.190804, 0), Vector(1.814093, -1.20064, 0), Vector(1.816268, -1.21096, 0), Vector(1.818224, -1.221703, 0), Vector(1.819559, -1.232947, 0), Vector(1.820634, -1.244658, 0), Vector(1.821267, -1.256844, 0), Vector(1.821346, -1.265123, 0), Vector(1.821385, -1.269331, 0)], [4, 1, 1, 1, 1, 1, 1, 1, 4], [0, 0.884706709, 1.796334032, 2.740027952, 3.714592787, 4.726048262, 5.777819803, 6.87074269, 8], False, 3, [1, 1, 1, 1, 1, 1, 1, 1, 1, 1, 1], False),  # 24
    Part.BSplineCurve([Vector(1.733044, -1.121254, 0), Vector(1.73692, -1.121413, 0), Vector(1.744663, -1.121733, 0), Vector(1.755977, -1.124813, 0), Vector(1.76696, -1.12946, 0), Vector(1.775567, -1.134954, 0), Vector(1.782115, -1.140187, 0), Vector(1.786807, -1.144649, 0), Vector(1.791113, -1.149644, 0), Vector(1.795197, -1.155034, 0), Vector(1.798943, -1.160921, 0), Vector(1.80235, -1.167278, 0), Vector(1.805458, -1.174121, 0), Vector(1.807229, -1.178898, 0), Vector(1.808134, -1.18134, 0)], [4, 1, 1, 1, 1, 1, 1, 1, 1, 1, 1, 1, 4], [0, 1.353760809, 2.704726607, 4.075137775, 5.516104923, 6.260822281, 7.007110065, 7.778089737, 8.566572457, 9.372053459, 10.217411131, 11.088608312, 12], False, 3, [1, 1, 1, 1, 1, 1, 1, 1, 1, 1, 1, 1, 1, 1, 1], False),  # 25
    Part.BSplineCurve([Vector(1.646385, -1.269331, 0), Vector(1.646397, -1.264656, 0), Vector(1.646421, -1.255583, 0), Vector(1.647026, -1.242398, 0), Vector(1.647851, -1.230101, 0), Vector(1.648915, -1.218676, 0), Vector(1.650496, -1.208161, 0), Vector(1.652266, -1.198484, 0), Vector(1.654421, -1.189696, 0), Vector(1.656971, -1.181738, 0), Vector(1.659875, -1.174473, 0), Vector(1.663045, -1.167713, 0), Vector(1.666451, -1.161377, 0), Vector(1.670263, -1.155524, 0), Vector(1.674415, -1.150133, 0), Vector(1.678812, -1.14511, 0), Vector(1.683619, -1.14063, 0), Vector(1.69027, -1.135258, 0), Vector(1.699049, -1.129706, 0), Vector(1.710111, -1.124871, 0), Vector(1.721478, -1.121833, 0), Vector(1.729193, -1.121447, 0), Vector(1.733044, -1.121254, 0)], [4, 1, 1, 1, 1, 1, 1, 1, 1, 1, 1, 1, 1, 1, 1, 1, 1, 1, 1, 1, 4], [0, 1.459021318, 2.831673884, 4.118529203, 5.306027144, 6.411944654, 7.436330062, 8.375795394, 9.233974572, 10.042671642, 10.816086306, 11.563610507, 12.285937304, 12.993564865, 13.685989202, 14.367179055, 15.041617293, 16.353048772, 17.594441528, 18.799311195, 20], False, 3, [1, 1, 1, 1, 1, 1, 1, 1, 1, 1, 1, 1, 1, 1, 1, 1, 1, 1, 1, 1, 1, 1, 1], False),  # 26
    Part.LineSegment(Vector(2.069933, -1.434305, 0), Vector(2.045744, -1.453305, 0)),  # 27
    Part.LineSegment(Vector(2.045744, -1.453305, 0), Vector(1.941277, -1.293589, 0)),  # 28
    Part.BSplineCurve([Vector(1.902155, -1.191927, 0), Vector(1.902273, -1.195531, 0), Vector(1.902514, -1.202891, 0), Vector(1.904198, -1.214037, 0), Vector(1.906905, -1.225442, 0), Vector(1.909936, -1.235118, 0), Vector(1.913138, -1.243044, 0), Vector(1.915804, -1.249434, 0), Vector(1.919121, -1.25601, 0), Vector(1.922658, -1.262998, 0), Vector(1.926734, -1.270216, 0), Vector(1.931166, -1.277787, 0), Vector(1.936076, -1.285588, 0), Vector(1.939518, -1.290883, 0), Vector(1.941277, -1.293589, 0)], [4, 1, 1, 1, 1, 1, 1, 1, 1, 1, 1, 1, 4], [0, 1.173818275, 2.396712641, 3.66331629, 4.989737886, 5.693666774, 6.447286557, 7.243889047, 8.091586357, 8.998013824, 9.943181721, 10.948533338, 12], False, 3, [1, 1, 1, 1, 1, 1, 1, 1, 1, 1, 1, 1, 1, 1, 1], False),  # 29
    Part.BSplineCurve([Vector(2.008164, -1.085356, 0), Vector(2.003455, -1.085509, 0), Vector(1.994126, -1.085812, 0), Vector(1.980402, -1.088508, 0), Vector(1.967216, -1.092879, 0), Vector(1.954659, -1.098901, 0), Vector(1.943027, -1.106506, 0), Vector(1.93262, -1.115663, 0), Vector(1.923491, -1.126174, 0), Vector(1.915894, -1.138038, 0), Vector(1.909868, -1.150787, 0), Vector(1.905349, -1.16408, 0), Vector(1.902709, -1.17787, 0), Vector(1.90234, -1.187218, 0), Vector(1.902155, -1.191927, 0)], [4, 1, 1, 1, 1, 1, 1, 1, 1, 1, 1, 1, 4], [0, 1.012016664, 2.004627821, 2.994792927, 3.992885782, 4.990978636, 5.973936114, 6.964471063, 7.975201453, 8.993600317, 9.990122807, 10.98767138, 12], False, 3, [1, 1, 1, 1, 1, 1, 1, 1, 1, 1, 1, 1, 1, 1, 1], False),  # 30
    Part.BSplineCurve([Vector(2.117539, -1.192558, 0), Vector(2.117397, -1.18766, 0), Vector(2.117117, -1.178022, 0), Vector(2.114327, -1.163984, 0), Vector(2.109991, -1.150611, 0), Vector(2.103793, -1.138116, 0), Vector(2.096095, -1.126515, 0), Vector(2.086707, -1.116237, 0), Vector(2.075962, -1.10707, 0), Vector(2.063814, -1.099404, 0), Vector(2.05074, -1.093144, 0), Vector(2.037004, -1.088647, 0), Vector(2.022742, -1.085879, 0), Vector(2.013061, -1.085532, 0), Vector(2.008164, -1.085356, 0)], [4, 1, 1, 1, 1, 1, 1, 1, 1, 1, 1, 1, 4], [0, 1.031375318, 2.029502543, 3.004789286, 3.987476834, 4.960371455, 5.9300674, 6.912260825, 7.929083631, 8.949397511, 9.960523116, 10.96833055, 12], False, 3, [1, 1, 1, 1, 1, 1, 1, 1, 1, 1, 1, 1, 1, 1, 1], False),  # 31
    Part.BSplineCurve([Vector(2.013703, -1.296254, 0), Vector(2.01726, -1.296158, 0), Vector(2.024263, -1.29597, 0), Vector(2.034543, -1.294522, 0), Vector(2.044422, -1.292239, 0), Vector(2.053858, -1.288912, 0), Vector(2.062886, -1.284662, 0), Vector(2.071556, -1.279568, 0), Vector(2.079706, -1.273367, 0), Vector(2.087441, -1.266441, 0), Vector(2.094464, -1.258769, 0), Vector(2.100682, -1.250629, 0), Vector(2.105904, -1.242029, 0), Vector(2.110142, -1.232973, 0), Vector(2.113432, -1.223476, 0), Vector(2.115831, -1.213549, 0), Vector(2.117249, -1.203186, 0), Vector(2.117441, -1.196138, 0), Vector(2.117539, -1.192558, 0)], [4, 1, 1, 1, 1, 1, 1, 1, 1, 1, 1, 1, 1, 1, 1, 1, 4], [0, 1.04369286, 2.054478336, 3.041073146, 4.015093852, 4.984733326, 5.965804835, 6.960378782, 7.985147595, 9.009457201, 10.008161701, 10.986880575, 11.956520048, 12.937015923, 13.931873656, 14.949455224, 16], False, 3, [1, 1, 1, 1, 1, 1, 1, 1, 1, 1, 1, 1, 1, 1, 1, 1, 1, 1, 1], False),  # 32
    Part.BSplineCurve([Vector(1.977455, -1.292888, 0), Vector(1.983612, -1.29387, 0), Vector(1.995622, -1.295784, 0), Vector(2.007779, -1.2961, 0), Vector(2.013703, -1.296254, 0)], [4, 1, 4], [0, 1.025318673, 2], False, 3, [1, 1, 1, 1, 1], False),  # 33
    Part.LineSegment(Vector(1.977455, -1.292888, 0), Vector(2.069933, -1.434305, 0)),  # 34
    Part.BSplineCurve([Vector(2.086129, -1.190665, 0), Vector(2.086074, -1.193054, 0), Vector(2.085966, -1.197744, 0), Vector(2.084744, -1.204613, 0), Vector(2.08305, -1.211245, 0), Vector(2.080492, -1.2176, 0), Vector(2.077168, -1.223651, 0), Vector(2.07312, -1.229431, 0), Vector(2.068437, -1.234982, 0), Vector(2.063027, -1.240138, 0), Vector(2.057138, -1.244853, 0), Vector(2.050876, -1.249015, 0), Vector(2.044325, -1.252527, 0), Vector(2.037492, -1.255458, 0), Vector(2.030298, -1.257573, 0), Vector(2.022859, -1.259238, 0), Vector(2.01508, -1.260124, 0), Vector(2.009802, -1.260278, 0), Vector(2.007113, -1.260356, 0)], [4, 1, 1, 1, 1, 1, 1, 1, 1, 1, 1, 1, 1, 1, 1, 1, 4], [0, 0.978206639, 1.919901502, 2.851605144, 3.780102724, 4.718870031, 5.675451981, 6.667674623, 7.690630536, 8.733308323, 9.756129687, 10.767539656, 11.776269907, 12.797430371, 13.836405707, 14.897401972, 16], False, 3, [1, 1, 1, 1, 1, 1, 1, 1, 1, 1, 1, 1, 1, 1, 1, 1, 1, 1, 1], False),  # 35
    Part.BSplineCurve([Vector(2.009847, -1.121254, 0), Vector(2.012444, -1.121331, 0), Vector(2.017536, -1.121481, 0), Vector(2.025053, -1.122389, 0), Vector(2.032261, -1.123996, 0), Vector(2.039166, -1.126277, 0), Vector(2.04582, -1.129063, 0), Vector(2.05213, -1.132586, 0), Vector(2.058133, -1.136781, 0), Vector(2.063809, -1.141493, 0), Vector(2.069072, -1.146631, 0), Vector(2.0736, -1.152154, 0), Vector(2.077468, -1.157923, 0), Vector(2.080612, -1.163943, 0), Vector(2.083118, -1.170256, 0), Vector(2.08483, -1.176827, 0), Vector(2.085943, -1.183663, 0), Vector(2.086066, -1.1883, 0), Vector(2.086129, -1.190665, 0)], [4, 1, 1, 1, 1, 1, 1, 1, 1, 1, 1, 1, 1, 1, 1, 1, 4], [0, 1.087397944, 2.132534446, 3.165364764, 4.174271784, 5.174024072, 6.181601208, 7.194203697, 8.236725232, 9.267838612, 10.269026844, 11.221737037, 12.171628256, 13.107553087, 14.05945871, 15.010357665, 16], False, 3, [1, 1, 1, 1, 1, 1, 1, 1, 1, 1, 1, 1, 1, 1, 1, 1, 1, 1, 1], False),  # 36
    Part.BSplineCurve([Vector(1.933565, -1.190665, 0), Vector(1.933628, -1.1883, 0), Vector(1.93375, -1.183662, 0), Vector(1.934866, -1.176828, 0), Vector(1.936569, -1.170252, 0), Vector(1.939103, -1.163967, 0), Vector(1.942126, -1.157877, 0), Vector(1.946116, -1.152204, 0), Vector(1.950538, -1.146602, 0), Vector(1.955823, -1.141501, 0), Vector(1.961496, -1.136756, 0), Vector(1.967556, -1.132608, 0), Vector(1.973872, -1.129059, 0), Vector(1.980529, -1.126278, 0), Vector(1.987433, -1.123996, 0), Vector(1.994641, -1.122389, 0), Vector(2.002158, -1.121481, 0), Vector(2.00725, -1.121331, 0), Vector(2.009847, -1.121254, 0)], [4, 1, 1, 1, 1, 1, 1, 1, 1, 1, 1, 1, 1, 1, 1, 1, 4], [0, 0.989467248, 1.94019797, 2.891935182, 3.827694429, 4.772920941, 5.730924762, 6.725747692, 7.756678648, 8.79901574, 9.819492441, 10.826891316, 11.826466727, 12.835195252, 13.867842842, 14.912794438, 16], False, 3, [1, 1, 1, 1, 1, 1, 1, 1, 1, 1, 1, 1, 1, 1, 1, 1, 1, 1, 1], False),  # 37
    Part.BSplineCurve([Vector(2.007113, -1.260356, 0), Vector(2.004446, -1.260278, 0), Vector(1.999238, -1.260127, 0), Vector(1.991598, -1.259244, 0), Vector(1.984366, -1.257582, 0), Vector(1.977449, -1.255465, 0), Vector(1.970974, -1.252555, 0), Vector(1.964895, -1.24902, 0), Vector(1.959189, -1.244858, 0), Vector(1.953914, -1.240128, 0), Vector(1.949132, -1.234949, 0), Vector(1.945014, -1.229402, 0), Vector(1.941462, -1.223621, 0), Vector(1.938574, -1.217556, 0), Vector(1.936325, -1.211212, 0), Vector(1.934698, -1.204616, 0), Vector(1.933792, -1.197724, 0), Vector(1.933642, -1.193051, 0), Vector(1.933565, -1.190665, 0)], [4, 1, 1, 1, 1, 1, 1, 1, 1, 1, 1, 1, 1, 1, 1, 1, 4], [0, 1.129588631, 2.206414736, 3.251139165, 4.268635594, 5.265702196, 6.250456724, 7.242448911, 8.251968645, 9.246821453, 10.222880186, 11.173611482, 12.116736599, 13.062300278, 14.020270554, 14.989073742, 16], False, 3, [1, 1, 1, 1, 1, 1, 1, 1, 1, 1, 1, 1, 1, 1, 1, 1, 1, 1, 1], False),  # 38
], False)
sketch4.addConstraint([
    Sketcher.Constraint("Block", 7),
    Sketcher.Constraint("Block", 8),
    Sketcher.Constraint("Block", 9),
    Sketcher.Constraint("Block", 15),
    Sketcher.Constraint("Block", 16),
    Sketcher.Constraint("Block", 17),
    Sketcher.Constraint("Block", 18),
    Sketcher.Constraint("Block", 19),
    Sketcher.Constraint("Block", 20),
    Sketcher.Constraint("Block", 21),
    Sketcher.Constraint("Block", 22),
    Sketcher.Constraint("Block", 23),
    Sketcher.Constraint("Block", 24),
    Sketcher.Constraint("Block", 25),
    Sketcher.Constraint("Block", 26),
    Sketcher.Constraint("Block", 29),
    Sketcher.Constraint("Block", 30),
    Sketcher.Constraint("Block", 31),
    Sketcher.Constraint("Block", 32),
    Sketcher.Constraint("Block", 33),
    Sketcher.Constraint("Block", 35),
    Sketcher.Constraint("Block", 36),
    Sketcher.Constraint("Block", 37),
    Sketcher.Constraint("Block", 38),
    Sketcher.Constraint("Coincident", 0, 2, 1, 1),
    Sketcher.Constraint("Coincident", 1, 2, 2, 1),
    Sketcher.Constraint("Coincident", 2, 2, 3, 1),
    Sketcher.Constraint("Coincident", 3, 2, 4, 1),
    Sketcher.Constraint("Coincident", 4, 2, 5, 1),
    Sketcher.Constraint("Coincident", 5, 2, 0, 1),
    Sketcher.Constraint("Coincident", 6, 2, 7, 2),
    Sketcher.Constraint("Coincident", 9, 1, 10, 1),
    Sketcher.Constraint("Coincident", 10, 2, 11, 1),
    Sketcher.Constraint("Coincident", 11, 2, 12, 1),
    Sketcher.Constraint("Coincident", 12, 2, 13, 1),
    Sketcher.Constraint("Coincident", 13, 2, 14, 1),
    Sketcher.Constraint("Coincident", 14, 2, 15, 2),
    Sketcher.Constraint("Coincident", 17, 1, 6, 1),
    Sketcher.Constraint("Coincident", 27, 2, 28, 1),
    Sketcher.Constraint("Coincident", 28, 2, 29, 2),
    Sketcher.Constraint("Coincident", 33, 1, 34, 1),
    Sketcher.Constraint("Coincident", 34, 2, 27, 1),
    Sketcher.Constraint("Horizontal", 0),
    Sketcher.Constraint("Horizontal", 2),
    Sketcher.Constraint("Vertical", 3),
    Sketcher.Constraint("Horizontal", 4),
    Sketcher.Constraint("Vertical", 5),
    Sketcher.Constraint("Horizontal", 11),
    Sketcher.Constraint("Vertical", 12),
    Sketcher.Constraint("Horizontal", 13),
    Sketcher.Constraint("DistanceY", 5, 2, 5, 1, Q("0.35 mm")),
    Sketcher.Constraint("DistanceY", 5, 2, 10, 2, Q("0.35 mm")),
    Sketcher.Constraint("DistanceX", 5, 2, 6, 2, Q("0.175 mm")),
    Sketcher.Constraint("DistanceY", 27, 2, 34, 2, Q("0.019 mm")),
    Sketcher.Constraint("DistanceX", 4, 1, 4, 2, Q("0.03141 mm")),
    Sketcher.Constraint("DistanceX", 11, 1, 11, 2, Q("0.237821 mm")),
    Sketcher.Constraint("DistanceX", 13, 2, 13, 1, Q("0.162871 mm")),
    Sketcher.Constraint("DistanceX", 14, 2, 12, 2, Q("0.0753 mm")),
    Sketcher.Constraint("Distance", 1, Q("0.04136 mm")),
    Sketcher.Constraint("Distance", 10, Q("0.198511 mm")),
    Sketcher.Constraint("Distance", 27, Q("0.030759 mm")),
    Sketcher.Constraint("Distance", 34, Q("0.16897 mm")),
    Sketcher.Constraint("DistanceX", 0, 2, 0, 1, Q("0.064714 mm")),
    Sketcher.Constraint("DistanceX", 2, 1, 2, 2, Q("0.053846 mm")),
    Sketcher.Constraint("DistanceY", 12, 2, 12, 1, Q("0.035897 mm")),
    Sketcher.Constraint("DistanceX", 12, 2, 27, 2, Q("0.462179 mm")),
])
sketch4.setExpression("Constraints[50]", "Params.sketch4_height")
pocket1 = doc.addObject("PartDesign::Pocket", "Pocket")
body2.addObject(pocket1)
pocket1.Profile = sketch4
pocket1.setExpression("Length", "Params.pocket1_length")
pocket1.Reversed = True

doc.recompute()
